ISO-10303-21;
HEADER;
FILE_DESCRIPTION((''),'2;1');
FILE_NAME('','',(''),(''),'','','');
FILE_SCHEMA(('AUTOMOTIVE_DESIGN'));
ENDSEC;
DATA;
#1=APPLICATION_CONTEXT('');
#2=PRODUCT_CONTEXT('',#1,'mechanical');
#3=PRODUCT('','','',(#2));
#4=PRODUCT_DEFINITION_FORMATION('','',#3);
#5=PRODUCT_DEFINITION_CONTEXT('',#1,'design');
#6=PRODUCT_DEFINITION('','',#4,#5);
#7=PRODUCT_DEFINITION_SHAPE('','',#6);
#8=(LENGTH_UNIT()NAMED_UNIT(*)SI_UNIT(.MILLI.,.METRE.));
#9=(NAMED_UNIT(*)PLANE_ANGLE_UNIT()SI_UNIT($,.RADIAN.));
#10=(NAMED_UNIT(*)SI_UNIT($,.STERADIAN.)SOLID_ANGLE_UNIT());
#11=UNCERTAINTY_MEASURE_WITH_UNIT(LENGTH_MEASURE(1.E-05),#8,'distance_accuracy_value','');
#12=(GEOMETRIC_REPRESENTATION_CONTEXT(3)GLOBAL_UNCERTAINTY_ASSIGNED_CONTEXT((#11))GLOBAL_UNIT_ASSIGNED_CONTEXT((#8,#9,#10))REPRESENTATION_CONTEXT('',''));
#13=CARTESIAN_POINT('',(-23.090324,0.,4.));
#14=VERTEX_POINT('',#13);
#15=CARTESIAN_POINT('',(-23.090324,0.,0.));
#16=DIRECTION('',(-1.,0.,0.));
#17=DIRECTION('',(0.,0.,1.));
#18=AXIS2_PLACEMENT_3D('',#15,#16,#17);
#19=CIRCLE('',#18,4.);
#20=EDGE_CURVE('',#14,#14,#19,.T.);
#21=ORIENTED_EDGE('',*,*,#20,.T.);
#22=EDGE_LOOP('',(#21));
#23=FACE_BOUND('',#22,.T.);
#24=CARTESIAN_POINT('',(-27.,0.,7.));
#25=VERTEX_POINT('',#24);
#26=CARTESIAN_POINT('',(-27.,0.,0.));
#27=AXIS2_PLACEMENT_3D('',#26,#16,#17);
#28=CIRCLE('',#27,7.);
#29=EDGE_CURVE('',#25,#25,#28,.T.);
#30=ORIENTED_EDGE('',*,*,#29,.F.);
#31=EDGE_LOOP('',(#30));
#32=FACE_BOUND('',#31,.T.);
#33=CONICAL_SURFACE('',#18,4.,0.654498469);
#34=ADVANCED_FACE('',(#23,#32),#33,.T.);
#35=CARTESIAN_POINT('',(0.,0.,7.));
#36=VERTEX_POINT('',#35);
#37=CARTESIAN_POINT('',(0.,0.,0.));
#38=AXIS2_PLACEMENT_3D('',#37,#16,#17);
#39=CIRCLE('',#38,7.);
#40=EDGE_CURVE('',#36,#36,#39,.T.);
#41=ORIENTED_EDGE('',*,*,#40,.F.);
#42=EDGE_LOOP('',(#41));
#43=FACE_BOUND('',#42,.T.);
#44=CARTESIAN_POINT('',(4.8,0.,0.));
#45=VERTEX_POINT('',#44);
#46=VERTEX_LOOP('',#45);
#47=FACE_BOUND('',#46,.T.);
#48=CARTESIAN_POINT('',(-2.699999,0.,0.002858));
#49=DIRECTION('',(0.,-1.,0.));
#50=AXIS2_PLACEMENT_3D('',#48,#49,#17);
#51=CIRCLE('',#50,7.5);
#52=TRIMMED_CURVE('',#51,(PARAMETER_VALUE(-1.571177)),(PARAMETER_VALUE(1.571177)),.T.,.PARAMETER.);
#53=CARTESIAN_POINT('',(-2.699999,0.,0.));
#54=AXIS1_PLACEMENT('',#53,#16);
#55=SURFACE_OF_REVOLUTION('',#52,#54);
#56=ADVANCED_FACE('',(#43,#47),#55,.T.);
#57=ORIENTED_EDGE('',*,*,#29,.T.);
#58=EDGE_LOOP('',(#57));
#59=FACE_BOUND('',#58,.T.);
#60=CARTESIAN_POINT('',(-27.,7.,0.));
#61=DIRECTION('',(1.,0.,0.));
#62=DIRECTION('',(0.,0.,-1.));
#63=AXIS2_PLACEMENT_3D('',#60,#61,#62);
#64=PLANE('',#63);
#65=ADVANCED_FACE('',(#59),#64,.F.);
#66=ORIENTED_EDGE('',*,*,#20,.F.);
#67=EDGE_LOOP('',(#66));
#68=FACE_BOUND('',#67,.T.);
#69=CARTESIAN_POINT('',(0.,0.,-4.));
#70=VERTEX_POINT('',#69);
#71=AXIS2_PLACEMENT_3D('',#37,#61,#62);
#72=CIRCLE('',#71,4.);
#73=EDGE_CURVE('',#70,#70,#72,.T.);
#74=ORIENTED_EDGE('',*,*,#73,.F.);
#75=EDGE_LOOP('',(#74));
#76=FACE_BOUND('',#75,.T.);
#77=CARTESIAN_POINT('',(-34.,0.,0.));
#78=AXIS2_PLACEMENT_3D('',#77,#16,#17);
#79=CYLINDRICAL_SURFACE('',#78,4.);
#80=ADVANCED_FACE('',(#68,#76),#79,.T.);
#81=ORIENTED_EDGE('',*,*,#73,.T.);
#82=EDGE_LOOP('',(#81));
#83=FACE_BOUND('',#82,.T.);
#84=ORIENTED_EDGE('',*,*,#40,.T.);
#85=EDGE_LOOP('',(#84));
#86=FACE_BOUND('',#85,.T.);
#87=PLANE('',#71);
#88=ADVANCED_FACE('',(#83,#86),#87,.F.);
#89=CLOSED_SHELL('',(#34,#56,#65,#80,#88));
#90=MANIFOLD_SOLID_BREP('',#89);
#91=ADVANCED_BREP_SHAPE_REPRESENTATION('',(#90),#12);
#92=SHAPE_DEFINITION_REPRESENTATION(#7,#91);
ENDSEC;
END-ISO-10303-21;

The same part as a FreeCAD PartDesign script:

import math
import FreeCAD as App
import Part
import Sketcher
Q = App.Units.Quantity


def add_polygon(sketch, points):
    """Adds a closed chain of lines whose ends are joined by coincident constraints."""
    first, n = sketch.GeometryCount, len(points)
    for a, b in zip(points, points[1:] + points[:1]):
        sketch.addGeometry(Part.LineSegment(App.Vector(*a, 0), App.Vector(*b, 0)), False)
    for i in range(n):
        sketch.addConstraint(Sketcher.Constraint("Coincident", first + i, 2, first + (i + 1) % n, 1))

doc = App.newDocument("Part")
body = doc.addObject("PartDesign::Body", "Body")

# Sketch on XY plane
sketch1 = body.newObject("Sketcher::SketchObject", "Sketch")
sketch1.AttachmentSupport = (doc.getObject("XY_Plane"), [""])
sketch1.MapMode = "FlatFace"
add_polygon(sketch1, [(-27, 0), (0, 0), (0, 4), (-23.1, 4), (-27, 7)])  # lines 0-4
sketch1.addConstraint(Sketcher.Constraint("Horizontal", 0))
sketch1.addConstraint(Sketcher.Constraint("Vertical", 1))
sketch1.addConstraint(Sketcher.Constraint("Horizontal", 2))
sketch1.addConstraint(Sketcher.Constraint("Vertical", 4))
sketch1.addConstraint(Sketcher.Constraint("Coincident", 0, 2, -1, 1))
sketch1.addConstraint(Sketcher.Constraint("DistanceX", 0, 1, 0, 2, Q("27 mm")))
sketch1.addConstraint(Sketcher.Constraint("DistanceY", 1, 1, 1, 2, Q("4 mm")))
sketch1.addConstraint(Sketcher.Constraint("DistanceY", 4, 2, 4, 1, Q("7 mm")))
sketch1.addConstraint(Sketcher.Constraint("Angle", 3, Q("142.5 deg")))
revolution = body.newObject("PartDesign::Revolution", "Revolution")
revolution.Profile = sketch1
revolution.ReferenceAxis = (sketch1, ["H_Axis"])
revolution.Angle = 360

# Sketch on XY plane
sketch2 = body.newObject("Sketcher::SketchObject", "Sketch001")
sketch2.AttachmentSupport = (doc.getObject("XY_Plane"), [""])
sketch2.MapMode = "FlatFace"
sketch2.addGeometry(Part.LineSegment(App.Vector(0, 0, 0), App.Vector(4.8, 0, 0)), False)
sketch2.addGeometry(Part.ArcOfCircle(Part.Circle(App.Vector(-2.7, 0, 0), App.Vector(0, 0, 1), 7.5), math.radians(0), math.radians(69)), False)
sketch2.addGeometry(Part.LineSegment(App.Vector(0, 7, 0), App.Vector(0, 0, 0)), False)
sketch2.addConstraint(Sketcher.Constraint("Coincident", 0, 2, 1, 1))
sketch2.addConstraint(Sketcher.Constraint("Coincident", 1, 2, 2, 1))
sketch2.addConstraint(Sketcher.Constraint("Coincident", 2, 2, 0, 1))
sketch2.addConstraint(Sketcher.Constraint("Horizontal", 0))
sketch2.addConstraint(Sketcher.Constraint("Vertical", 2))
sketch2.addConstraint(Sketcher.Constraint("Coincident", 2, 2, -1, 1))
sketch2.addConstraint(Sketcher.Constraint("Radius", 1, Q("7.5 mm")))
sketch2.addConstraint(Sketcher.Constraint("DistanceY", 2, 2, 2, 1, Q("7 mm")))
sketch2.addConstraint(Sketcher.Constraint("DistanceX", 0, 1, 0, 2, Q("4.8 mm")))
revolution2 = body.newObject("PartDesign::Revolution", "Revolution001")
revolution2.Profile = sketch2
revolution2.ReferenceAxis = (sketch2, ["H_Axis"])
revolution2.Angle = 360

doc.recompute()
